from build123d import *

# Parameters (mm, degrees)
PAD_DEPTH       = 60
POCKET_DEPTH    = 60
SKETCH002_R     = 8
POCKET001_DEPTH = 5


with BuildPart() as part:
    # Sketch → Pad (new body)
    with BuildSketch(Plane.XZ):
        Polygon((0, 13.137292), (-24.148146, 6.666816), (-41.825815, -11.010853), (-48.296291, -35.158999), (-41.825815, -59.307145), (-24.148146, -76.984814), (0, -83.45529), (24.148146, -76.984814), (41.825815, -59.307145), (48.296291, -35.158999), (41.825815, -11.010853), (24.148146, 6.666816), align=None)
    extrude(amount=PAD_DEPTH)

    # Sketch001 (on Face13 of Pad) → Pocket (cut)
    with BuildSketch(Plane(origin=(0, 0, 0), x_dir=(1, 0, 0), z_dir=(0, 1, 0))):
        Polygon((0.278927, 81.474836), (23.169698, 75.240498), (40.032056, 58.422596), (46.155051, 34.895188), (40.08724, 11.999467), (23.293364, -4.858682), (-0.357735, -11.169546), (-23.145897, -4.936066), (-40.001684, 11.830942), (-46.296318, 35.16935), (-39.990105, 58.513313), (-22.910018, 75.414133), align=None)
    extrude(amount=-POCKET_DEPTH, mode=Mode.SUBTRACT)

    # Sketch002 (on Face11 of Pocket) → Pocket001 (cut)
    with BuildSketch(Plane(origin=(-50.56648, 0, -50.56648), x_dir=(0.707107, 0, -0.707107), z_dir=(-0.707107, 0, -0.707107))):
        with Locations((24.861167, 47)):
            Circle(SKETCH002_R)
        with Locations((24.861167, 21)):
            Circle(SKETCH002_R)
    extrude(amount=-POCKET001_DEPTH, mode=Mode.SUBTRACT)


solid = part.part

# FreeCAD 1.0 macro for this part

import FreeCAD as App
import Part
import Sketcher
from FreeCAD import Vector
Q = App.Units.Quantity


def add_polygon(sketch, points):
    """Adds a closed chain of lines whose ends are joined by coincident constraints."""
    first, n = sketch.GeometryCount, len(points)
    for a, b in zip(points, points[1:] + points[:1]):
        sketch.addGeometry(Part.LineSegment(App.Vector(*a, 0), App.Vector(*b, 0)), False)
    for i in range(n):
        sketch.addConstraint(Sketcher.Constraint("Coincident", first + i, 2, first + (i + 1) % n, 1))

doc = App.newDocument("Part")
body = doc.addObject("PartDesign::Body", "Body")

sketch1 = doc.addObject("Sketcher::SketchObject", "Sketch")
body.addObject(sketch1)
sketch1.AttachmentSupport = (doc.XZ_Plane, [""])
sketch1.MapMode = "FlatFace"
add_polygon(sketch1, [(0, 13.137292), (-24.148146, 6.666816), (-41.825815, -11.010853), (-48.296291, -35.158999), (-41.825815, -59.307145), (-24.148146, -76.984814), (0, -83.45529), (24.148146, -76.984814), (41.825815, -59.307145), (48.296291, -35.158999), (41.825815, -11.010853), (24.148146, 6.666816)])
sketch1.addConstraint([
    Sketcher.Constraint("Symmetric", 4, 2, 6, 2, -2),
    Sketcher.Constraint("Symmetric", 3, 2, 7, 2, -2),
    Sketcher.Constraint("Symmetric", 2, 2, 8, 2, -2),
    Sketcher.Constraint("Symmetric", 1, 2, 9, 2, -2),
    Sketcher.Constraint("Symmetric", 0, 2, 10, 2, -2),
    Sketcher.Constraint("PointOnObject", 5, 2, -2),
    Sketcher.Constraint("PointOnObject", 11, 2, -2),
    Sketcher.Constraint("Perpendicular", 0, 3),
    Sketcher.Constraint("Perpendicular", 1, 4),
    Sketcher.Constraint("Perpendicular", 2, 5),
    Sketcher.Constraint("Perpendicular", 3, 6),
    Sketcher.Constraint("Perpendicular", 4, 7),
    Sketcher.Constraint("Vertical", 1, 2, 3, 2),
    Sketcher.Constraint("Vertical", 0, 2, 4, 2),
    Sketcher.Constraint("Equal", 0, 1),
    Sketcher.Constraint("Equal", 1, 2),
    Sketcher.Constraint("Angle", 0, Q("-165 deg")),
    Sketcher.Constraint("Distance", 0, 25.0),
    Sketcher.Constraint("DistanceY", 2, 2, -1, 1, 35.158999),
])
pad1 = doc.addObject("PartDesign::Pad", "Pad")
body.addObject(pad1)
pad1.Profile = sketch1
pad1.Length = 60

sketch2 = doc.addObject("Sketcher::SketchObject", "Sketch001")
body.addObject(sketch2)
sketch2.AttachmentSupport = (doc.XZ_Plane, [""])
sketch2.MapMode = "FlatFace"
add_polygon(sketch2, [(23.169698, -75.240498), (0.278927, -81.474836), (-22.910018, -75.414133), (-39.990105, -58.513313), (-46.296318, -35.16935), (-40.001684, -11.830942), (-23.145897, 4.936066), (-0.357735, 11.169546), (23.293364, 4.858682), (40.08724, -11.999467), (46.155051, -34.895188), (40.032056, -58.422596)])
sketch2.addConstraint([
    Sketcher.Constraint("DistanceX", -1, 1, 11, 2, 23.169698),
    Sketcher.Constraint("DistanceY", 11, 2, -1, 1, 75.240498),
    Sketcher.Constraint("DistanceX", 3, 2, 1, 2, 23.3863),
    Sketcher.Constraint("DistanceY", 1, 2, 5, 2, 80.350199),
    Sketcher.Constraint("DistanceY", 0, 2, 5, 2, 86.410902),
    Sketcher.Constraint("DistanceX", 6, 2, 7, 2, 23.651099),
    Sketcher.Constraint("Distance", 0, 23.724552),
    Sketcher.Constraint("Distance", 1, 23.96788),
    Sketcher.Constraint("Distance", 5, 23.774989),
    Sketcher.Constraint("Distance", 6, 23.625338),
    Sketcher.Constraint("Distance", 8, 23.795618),
    Sketcher.Constraint("Distance", 9, 23.686122),
    Sketcher.Constraint("Distance", 10, 24.311108),
    Sketcher.Constraint("Distance", 11, 23.815561),
    Sketcher.Constraint("DistanceX", 1, 2, -1, 1, 22.910018),
    Sketcher.Constraint("DistanceY", 3, 2, -1, 1, 35.16935),
    Sketcher.Constraint("DistanceX", -1, 1, 8, 2, 40.08724),
    Sketcher.Constraint("DistanceX", -1, 1, 9, 2, 46.155051),
    Sketcher.Constraint("DistanceY", 1, 2, 2, 2, 16.90082),
    Sketcher.Constraint("DistanceY", 3, 2, 4, 2, 23.338408),
    Sketcher.Constraint("DistanceX", 4, 2, 2, 2, 0.011579),
    Sketcher.Constraint("DistanceX", 4, 2, 0, 2, 40.280611),
    Sketcher.Constraint("DistanceX", 5, 2, 6, 2, 22.788162),
    Sketcher.Constraint("DistanceY", 0, 2, 7, 2, 86.333518),
])
pocket1 = doc.addObject("PartDesign::Pocket", "Pocket")
body.addObject(pocket1)
pocket1.Profile = sketch2
pocket1.Length = 60
pocket1.Reversed = True

sketch3 = doc.addObject("Sketcher::SketchObject", "Sketch002")
body.addObject(sketch3)
sketch3.Placement = App.Placement(Vector(-50.56648, 0, -50.56648), App.Rotation(Vector(0.707106781, 0, -0.707106781), Vector(0, -0.999999999, 0), Vector(-0.707106781, 0, -0.707106781), "ZXY"))
sketch3.addGeometry([
    Part.Circle(Vector(24.861167, 47, 0), Vector(0, 0, 1), 8),
    Part.Circle(Vector(24.861167, 21, 0), Vector(0, 0, 1), 8),
], False)
sketch3.addConstraint([
    Sketcher.Constraint("Equal", 0, 1),
    Sketcher.Constraint("Vertical", 0, 3, 1, 3),
    Sketcher.Constraint("Diameter", 0, 16.0),
    Sketcher.Constraint("DistanceY", -1, 1, 0, 3, 47.0),
    Sketcher.Constraint("DistanceY", -1, 1, 1, 3, 21.0),
    Sketcher.Constraint("DistanceX", -1, 1, 0, 3, 24.861167),
])
pocket2 = doc.addObject("PartDesign::Pocket", "Pocket001")
body.addObject(pocket2)
pocket2.Profile = sketch3
pocket2.Length = 5

doc.recompute()
